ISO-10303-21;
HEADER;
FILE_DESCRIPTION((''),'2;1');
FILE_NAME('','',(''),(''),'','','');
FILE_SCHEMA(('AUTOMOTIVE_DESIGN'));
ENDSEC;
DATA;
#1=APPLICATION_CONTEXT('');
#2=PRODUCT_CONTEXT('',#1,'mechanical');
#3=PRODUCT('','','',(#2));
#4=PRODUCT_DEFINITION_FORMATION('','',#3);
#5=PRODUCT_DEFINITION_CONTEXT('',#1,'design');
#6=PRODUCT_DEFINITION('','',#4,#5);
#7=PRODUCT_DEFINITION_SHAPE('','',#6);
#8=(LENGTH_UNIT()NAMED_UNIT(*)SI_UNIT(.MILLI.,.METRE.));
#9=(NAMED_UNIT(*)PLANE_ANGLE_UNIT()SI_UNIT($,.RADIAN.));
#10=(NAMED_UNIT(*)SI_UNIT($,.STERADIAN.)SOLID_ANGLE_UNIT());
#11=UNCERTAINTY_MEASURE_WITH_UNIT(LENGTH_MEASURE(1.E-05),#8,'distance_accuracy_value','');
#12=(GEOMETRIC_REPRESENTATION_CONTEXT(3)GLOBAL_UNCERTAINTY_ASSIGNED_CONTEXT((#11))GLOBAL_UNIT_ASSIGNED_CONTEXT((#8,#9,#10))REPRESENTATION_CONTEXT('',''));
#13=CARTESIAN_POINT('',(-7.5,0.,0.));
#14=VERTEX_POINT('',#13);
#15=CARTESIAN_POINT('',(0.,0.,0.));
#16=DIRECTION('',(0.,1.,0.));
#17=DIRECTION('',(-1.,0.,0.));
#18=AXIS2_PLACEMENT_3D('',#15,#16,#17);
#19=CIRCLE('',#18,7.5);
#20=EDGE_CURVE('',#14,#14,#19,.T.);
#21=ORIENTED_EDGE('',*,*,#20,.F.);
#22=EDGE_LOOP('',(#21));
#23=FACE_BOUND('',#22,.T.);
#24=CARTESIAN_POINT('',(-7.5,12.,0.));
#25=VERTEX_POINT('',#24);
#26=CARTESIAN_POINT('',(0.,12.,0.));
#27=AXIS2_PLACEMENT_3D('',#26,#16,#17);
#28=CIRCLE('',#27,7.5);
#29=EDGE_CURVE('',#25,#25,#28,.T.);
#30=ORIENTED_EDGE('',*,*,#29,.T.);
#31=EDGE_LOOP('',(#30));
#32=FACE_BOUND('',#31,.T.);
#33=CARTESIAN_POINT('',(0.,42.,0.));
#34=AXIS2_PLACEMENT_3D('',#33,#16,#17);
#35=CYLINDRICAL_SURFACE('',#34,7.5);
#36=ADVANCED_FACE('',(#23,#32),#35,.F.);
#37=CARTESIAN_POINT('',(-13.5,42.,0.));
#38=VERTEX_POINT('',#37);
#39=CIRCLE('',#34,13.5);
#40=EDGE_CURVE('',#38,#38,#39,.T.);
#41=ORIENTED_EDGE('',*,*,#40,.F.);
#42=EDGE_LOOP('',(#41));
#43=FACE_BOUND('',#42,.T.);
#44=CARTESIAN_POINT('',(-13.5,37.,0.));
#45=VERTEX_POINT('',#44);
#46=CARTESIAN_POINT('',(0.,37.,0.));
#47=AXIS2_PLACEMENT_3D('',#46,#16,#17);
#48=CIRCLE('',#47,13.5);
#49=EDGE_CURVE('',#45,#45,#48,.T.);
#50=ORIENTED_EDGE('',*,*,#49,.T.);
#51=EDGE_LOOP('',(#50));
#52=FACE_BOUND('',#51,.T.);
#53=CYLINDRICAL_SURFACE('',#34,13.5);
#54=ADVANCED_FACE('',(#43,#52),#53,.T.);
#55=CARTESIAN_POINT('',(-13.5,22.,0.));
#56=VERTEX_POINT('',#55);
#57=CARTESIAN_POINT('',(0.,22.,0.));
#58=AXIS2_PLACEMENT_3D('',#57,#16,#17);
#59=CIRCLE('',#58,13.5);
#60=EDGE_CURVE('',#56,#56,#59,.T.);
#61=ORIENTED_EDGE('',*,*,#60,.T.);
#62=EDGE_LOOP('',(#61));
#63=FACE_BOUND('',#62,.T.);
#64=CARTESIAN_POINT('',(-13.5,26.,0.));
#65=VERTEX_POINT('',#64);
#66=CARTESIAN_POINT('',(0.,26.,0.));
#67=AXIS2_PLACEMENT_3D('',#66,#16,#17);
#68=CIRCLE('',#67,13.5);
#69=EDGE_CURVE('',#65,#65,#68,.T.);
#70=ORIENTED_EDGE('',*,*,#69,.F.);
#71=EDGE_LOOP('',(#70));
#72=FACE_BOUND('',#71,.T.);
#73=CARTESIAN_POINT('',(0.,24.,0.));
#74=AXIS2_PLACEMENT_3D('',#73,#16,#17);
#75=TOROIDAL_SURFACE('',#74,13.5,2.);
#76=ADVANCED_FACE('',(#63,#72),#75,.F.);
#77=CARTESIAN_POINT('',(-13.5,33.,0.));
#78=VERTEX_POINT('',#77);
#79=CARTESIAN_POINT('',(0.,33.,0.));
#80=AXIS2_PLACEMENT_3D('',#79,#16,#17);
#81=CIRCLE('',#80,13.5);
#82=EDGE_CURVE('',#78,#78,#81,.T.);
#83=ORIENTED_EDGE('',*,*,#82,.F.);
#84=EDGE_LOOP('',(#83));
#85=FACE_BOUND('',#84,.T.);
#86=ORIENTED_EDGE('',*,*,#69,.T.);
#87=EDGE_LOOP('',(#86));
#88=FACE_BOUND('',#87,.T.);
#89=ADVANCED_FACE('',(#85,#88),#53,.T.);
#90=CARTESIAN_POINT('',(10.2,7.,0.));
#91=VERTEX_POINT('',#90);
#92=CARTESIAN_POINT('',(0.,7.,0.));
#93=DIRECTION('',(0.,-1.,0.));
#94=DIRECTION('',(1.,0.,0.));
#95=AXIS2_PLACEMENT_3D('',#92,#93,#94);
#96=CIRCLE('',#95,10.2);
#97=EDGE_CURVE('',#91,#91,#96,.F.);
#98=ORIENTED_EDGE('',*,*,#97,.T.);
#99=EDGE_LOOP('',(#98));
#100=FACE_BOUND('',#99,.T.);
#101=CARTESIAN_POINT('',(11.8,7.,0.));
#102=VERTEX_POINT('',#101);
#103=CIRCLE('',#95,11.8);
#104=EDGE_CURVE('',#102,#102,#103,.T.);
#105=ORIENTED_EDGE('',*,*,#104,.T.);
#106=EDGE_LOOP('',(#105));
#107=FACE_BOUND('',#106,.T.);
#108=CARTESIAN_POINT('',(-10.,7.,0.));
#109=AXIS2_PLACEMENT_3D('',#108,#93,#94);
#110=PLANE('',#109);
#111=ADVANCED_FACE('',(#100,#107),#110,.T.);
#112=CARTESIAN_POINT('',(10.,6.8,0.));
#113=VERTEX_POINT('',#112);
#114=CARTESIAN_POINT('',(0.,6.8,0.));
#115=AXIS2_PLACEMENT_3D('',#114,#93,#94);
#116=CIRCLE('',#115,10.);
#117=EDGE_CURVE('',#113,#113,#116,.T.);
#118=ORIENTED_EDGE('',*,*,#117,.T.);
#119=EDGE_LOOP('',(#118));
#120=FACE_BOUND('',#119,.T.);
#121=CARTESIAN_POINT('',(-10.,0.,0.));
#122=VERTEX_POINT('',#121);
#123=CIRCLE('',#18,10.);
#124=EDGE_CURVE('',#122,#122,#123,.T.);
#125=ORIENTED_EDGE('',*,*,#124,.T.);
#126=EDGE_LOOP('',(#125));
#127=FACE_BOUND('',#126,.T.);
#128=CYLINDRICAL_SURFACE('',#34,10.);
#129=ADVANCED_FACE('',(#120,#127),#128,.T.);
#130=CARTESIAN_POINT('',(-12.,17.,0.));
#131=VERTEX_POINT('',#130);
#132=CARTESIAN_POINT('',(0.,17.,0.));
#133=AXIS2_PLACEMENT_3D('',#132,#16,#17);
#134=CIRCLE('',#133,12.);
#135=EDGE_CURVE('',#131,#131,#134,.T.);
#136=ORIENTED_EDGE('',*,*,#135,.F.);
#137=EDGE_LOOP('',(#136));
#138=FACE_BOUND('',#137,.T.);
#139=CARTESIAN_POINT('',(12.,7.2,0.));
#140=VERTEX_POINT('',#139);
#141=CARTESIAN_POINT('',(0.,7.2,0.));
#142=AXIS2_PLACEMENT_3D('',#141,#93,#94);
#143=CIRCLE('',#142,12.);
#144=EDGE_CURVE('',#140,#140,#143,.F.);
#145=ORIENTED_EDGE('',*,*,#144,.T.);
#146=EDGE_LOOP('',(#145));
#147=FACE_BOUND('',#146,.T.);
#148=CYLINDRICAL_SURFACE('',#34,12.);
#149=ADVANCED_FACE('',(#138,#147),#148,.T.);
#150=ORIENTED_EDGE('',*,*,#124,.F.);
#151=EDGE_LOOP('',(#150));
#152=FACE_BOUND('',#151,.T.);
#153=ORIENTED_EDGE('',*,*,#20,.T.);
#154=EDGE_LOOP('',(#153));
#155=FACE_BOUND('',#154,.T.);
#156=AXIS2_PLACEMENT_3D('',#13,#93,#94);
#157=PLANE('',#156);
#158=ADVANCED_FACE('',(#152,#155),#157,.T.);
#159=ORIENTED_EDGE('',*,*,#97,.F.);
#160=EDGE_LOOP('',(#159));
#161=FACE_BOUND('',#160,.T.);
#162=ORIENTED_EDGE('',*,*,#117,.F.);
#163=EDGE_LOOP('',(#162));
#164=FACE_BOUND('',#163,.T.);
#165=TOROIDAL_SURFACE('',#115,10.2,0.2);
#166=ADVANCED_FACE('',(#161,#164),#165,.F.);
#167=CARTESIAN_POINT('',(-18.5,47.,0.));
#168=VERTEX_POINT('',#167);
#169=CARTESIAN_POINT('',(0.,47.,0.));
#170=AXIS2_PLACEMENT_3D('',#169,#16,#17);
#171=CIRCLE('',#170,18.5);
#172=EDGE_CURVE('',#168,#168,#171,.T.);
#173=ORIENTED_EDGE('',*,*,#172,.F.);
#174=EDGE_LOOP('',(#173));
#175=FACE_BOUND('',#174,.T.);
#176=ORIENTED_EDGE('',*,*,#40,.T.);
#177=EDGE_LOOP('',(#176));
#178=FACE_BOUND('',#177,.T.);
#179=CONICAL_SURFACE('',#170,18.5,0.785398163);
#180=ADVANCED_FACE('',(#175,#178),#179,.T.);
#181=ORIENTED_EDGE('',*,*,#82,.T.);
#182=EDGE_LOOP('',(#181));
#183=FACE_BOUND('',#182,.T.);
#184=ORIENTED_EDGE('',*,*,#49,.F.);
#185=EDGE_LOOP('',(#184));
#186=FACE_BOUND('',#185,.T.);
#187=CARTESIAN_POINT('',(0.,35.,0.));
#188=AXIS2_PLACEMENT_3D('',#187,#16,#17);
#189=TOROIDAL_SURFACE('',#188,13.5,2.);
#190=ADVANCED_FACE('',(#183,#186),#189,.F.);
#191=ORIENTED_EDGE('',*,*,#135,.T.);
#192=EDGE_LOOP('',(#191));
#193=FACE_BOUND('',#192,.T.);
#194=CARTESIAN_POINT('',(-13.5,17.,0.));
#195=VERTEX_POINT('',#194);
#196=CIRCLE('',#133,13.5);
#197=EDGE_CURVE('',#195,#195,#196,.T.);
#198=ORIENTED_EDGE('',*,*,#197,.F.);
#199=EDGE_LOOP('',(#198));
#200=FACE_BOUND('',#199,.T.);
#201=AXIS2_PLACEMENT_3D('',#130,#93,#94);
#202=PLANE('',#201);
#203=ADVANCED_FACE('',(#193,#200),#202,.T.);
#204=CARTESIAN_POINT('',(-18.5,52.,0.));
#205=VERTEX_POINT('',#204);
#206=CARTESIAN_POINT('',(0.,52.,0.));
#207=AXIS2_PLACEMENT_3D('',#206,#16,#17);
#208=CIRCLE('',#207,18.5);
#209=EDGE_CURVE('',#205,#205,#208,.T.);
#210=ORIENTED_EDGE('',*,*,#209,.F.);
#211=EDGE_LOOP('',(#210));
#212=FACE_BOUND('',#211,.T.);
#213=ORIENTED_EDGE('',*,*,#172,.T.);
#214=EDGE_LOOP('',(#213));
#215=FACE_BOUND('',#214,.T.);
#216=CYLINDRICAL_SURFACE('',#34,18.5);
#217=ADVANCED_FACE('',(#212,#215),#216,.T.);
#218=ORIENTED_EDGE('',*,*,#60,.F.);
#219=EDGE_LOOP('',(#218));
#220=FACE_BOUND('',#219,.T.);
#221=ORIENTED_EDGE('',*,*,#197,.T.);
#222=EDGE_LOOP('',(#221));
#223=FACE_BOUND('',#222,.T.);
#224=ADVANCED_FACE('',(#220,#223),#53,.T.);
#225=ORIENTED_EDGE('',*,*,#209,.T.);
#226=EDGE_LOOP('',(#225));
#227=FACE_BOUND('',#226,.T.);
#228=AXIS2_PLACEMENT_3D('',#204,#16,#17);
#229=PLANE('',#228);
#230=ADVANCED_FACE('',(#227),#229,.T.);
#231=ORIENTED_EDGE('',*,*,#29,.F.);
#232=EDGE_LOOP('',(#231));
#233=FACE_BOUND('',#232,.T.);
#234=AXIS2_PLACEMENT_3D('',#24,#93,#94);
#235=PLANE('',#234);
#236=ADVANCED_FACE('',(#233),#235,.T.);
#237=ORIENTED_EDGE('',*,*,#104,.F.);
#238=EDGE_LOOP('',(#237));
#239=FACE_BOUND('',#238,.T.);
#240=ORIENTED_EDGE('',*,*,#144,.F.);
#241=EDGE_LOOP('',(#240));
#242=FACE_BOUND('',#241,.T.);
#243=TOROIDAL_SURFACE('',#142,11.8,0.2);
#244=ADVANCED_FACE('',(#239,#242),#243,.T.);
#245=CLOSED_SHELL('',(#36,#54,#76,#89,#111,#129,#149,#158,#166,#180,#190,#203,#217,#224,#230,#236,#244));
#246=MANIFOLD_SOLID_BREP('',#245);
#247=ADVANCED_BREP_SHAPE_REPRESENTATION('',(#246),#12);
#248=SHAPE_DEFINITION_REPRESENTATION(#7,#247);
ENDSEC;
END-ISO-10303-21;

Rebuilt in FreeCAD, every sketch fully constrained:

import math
import FreeCAD as App
import Part
import Sketcher
from FreeCAD import Vector
Q = App.Units.Quantity


def edges_at(feature, points):
    """Names of the edges that pass closest to the given points."""
    edges = feature.Shape.Edges
    near = lambda p: min(range(len(edges)), key=lambda i: edges[i].distToShape(Part.Vertex(*p))[0])
    return sorted({f"Edge{near(p) + 1}" for p in points})

doc = App.newDocument("Part")
body = doc.addObject("PartDesign::Body", "Body")

# Sketch on XY plane
sketch1 = doc.addObject("Sketcher::SketchObject", "Sketch")
body.addObject(sketch1)
sketch1.AttachmentSupport = (doc.XY_Plane, [""])
sketch1.MapMode = "FlatFace"
sketch1.addGeometry(Part.LineSegment(Vector(-10, 0, 0), Vector(-7.5, 0, 0)), False)
sketch1.addGeometry(Part.LineSegment(Vector(-7.5, 0, 0), Vector(-7.5, 12, 0)), False)
sketch1.addGeometry(Part.LineSegment(Vector(-7.5, 12, 0), Vector(0, 12, 0)), False)
sketch1.addGeometry(Part.LineSegment(Vector(0, 12, 0), Vector(0, 52, 0)), False)
sketch1.addGeometry(Part.LineSegment(Vector(0, 52, 0), Vector(-18.5, 52, 0)), False)
sketch1.addGeometry(Part.LineSegment(Vector(-18.5, 52, 0), Vector(-18.5, 47, 0)), False)
sketch1.addGeometry(Part.LineSegment(Vector(-18.5, 47, 0), Vector(-13.5, 42, 0)), False)
sketch1.addGeometry(Part.LineSegment(Vector(-13.5, 42, 0), Vector(-13.5, 37, 0)), False)
sketch1.addGeometry(Part.ArcOfCircle(Part.Circle(Vector(-13.5, 35, 0), Vector(0, 0, 1), 2), math.radians(-90), math.radians(90)), False)
sketch1.addGeometry(Part.LineSegment(Vector(-13.5, 33, 0), Vector(-13.5, 26, 0)), False)
sketch1.addGeometry(Part.ArcOfCircle(Part.Circle(Vector(-13.5, 24, 0), Vector(0, 0, 1), 2), math.radians(-90), math.radians(90)), False)
sketch1.addGeometry(Part.LineSegment(Vector(-13.5, 22, 0), Vector(-13.5, 17, 0)), False)
sketch1.addGeometry(Part.LineSegment(Vector(-13.5, 17, 0), Vector(-12, 17, 0)), False)
sketch1.addGeometry(Part.LineSegment(Vector(-12, 17, 0), Vector(-12, 7, 0)), False)
sketch1.addGeometry(Part.LineSegment(Vector(-12, 7, 0), Vector(-10, 7, 0)), False)
sketch1.addGeometry(Part.LineSegment(Vector(-10, 7, 0), Vector(-10, 0, 0)), False)
sketch1.addConstraint(Sketcher.Constraint("Coincident", 0, 2, 1, 1))
sketch1.addConstraint(Sketcher.Constraint("Coincident", 1, 2, 2, 1))
sketch1.addConstraint(Sketcher.Constraint("Coincident", 2, 2, 3, 1))
sketch1.addConstraint(Sketcher.Constraint("Coincident", 3, 2, 4, 1))
sketch1.addConstraint(Sketcher.Constraint("Coincident", 4, 2, 5, 1))
sketch1.addConstraint(Sketcher.Constraint("Coincident", 5, 2, 6, 1))
sketch1.addConstraint(Sketcher.Constraint("Coincident", 6, 2, 7, 1))
sketch1.addConstraint(Sketcher.Constraint("Coincident", 7, 2, 8, 2))
sketch1.addConstraint(Sketcher.Constraint("Coincident", 8, 1, 9, 1))
sketch1.addConstraint(Sketcher.Constraint("Coincident", 9, 2, 10, 2))
sketch1.addConstraint(Sketcher.Constraint("Coincident", 10, 1, 11, 1))
sketch1.addConstraint(Sketcher.Constraint("Coincident", 11, 2, 12, 1))
sketch1.addConstraint(Sketcher.Constraint("Coincident", 12, 2, 13, 1))
sketch1.addConstraint(Sketcher.Constraint("Coincident", 13, 2, 14, 1))
sketch1.addConstraint(Sketcher.Constraint("Coincident", 14, 2, 15, 1))
sketch1.addConstraint(Sketcher.Constraint("Coincident", 15, 2, 0, 1))
sketch1.addConstraint(Sketcher.Constraint("Horizontal", 0))
sketch1.addConstraint(Sketcher.Constraint("Vertical", 1))
sketch1.addConstraint(Sketcher.Constraint("Horizontal", 2))
sketch1.addConstraint(Sketcher.Constraint("Vertical", 3))
sketch1.addConstraint(Sketcher.Constraint("Horizontal", 4))
sketch1.addConstraint(Sketcher.Constraint("Vertical", 5))
sketch1.addConstraint(Sketcher.Constraint("Vertical", 7))
sketch1.addConstraint(Sketcher.Constraint("Vertical", 9))
sketch1.addConstraint(Sketcher.Constraint("Vertical", 11))
sketch1.addConstraint(Sketcher.Constraint("Horizontal", 12))
sketch1.addConstraint(Sketcher.Constraint("Vertical", 13))
sketch1.addConstraint(Sketcher.Constraint("Horizontal", 14))
sketch1.addConstraint(Sketcher.Constraint("Vertical", 15))
sketch1.addConstraint(Sketcher.Constraint("Equal", 8, 10))
sketch1.addConstraint(Sketcher.Constraint("PointOnObject", 0, 2, -1))
sketch1.addConstraint(Sketcher.Constraint("PointOnObject", 2, 2, -2))
sketch1.addConstraint(Sketcher.Constraint("Vertical", 8, 3, 10, 3))
sketch1.addConstraint(Sketcher.Constraint("Vertical", 10, 3, 6, 2))
sketch1.addConstraint(Sketcher.Constraint("Vertical", 7, 2, 8, 1))
sketch1.addConstraint(Sketcher.Constraint("Vertical", 9, 2, 10, 1))
sketch1.addConstraint(Sketcher.Constraint("Equal", 5, 7))
sketch1.addConstraint(Sketcher.Constraint("Equal", 7, 11))
sketch1.addConstraint(Sketcher.Constraint("Equal", 9, 15))
sketch1.addConstraint(Sketcher.Constraint("Radius", 8, 2.0))
sketch1.addConstraint(Sketcher.Constraint("DistanceX", 14, 1, 14, 2, 2.0))
sketch1.addConstraint(Sketcher.Constraint("DistanceY", 1, 1, 1, 2, 12.0))
sketch1.addConstraint(Sketcher.Constraint("DistanceY", 3, 1, 3, 2, 40.0))
sketch1.addConstraint(Sketcher.Constraint("DistanceY", 5, 2, 5, 1, 5.0))
sketch1.addConstraint(Sketcher.Constraint("DistanceY", 9, 2, 9, 1, 7.0))
sketch1.addConstraint(Sketcher.Constraint("DistanceY", 13, 2, 13, 1, 10.0))
sketch1.addConstraint(Sketcher.Constraint("Angle", 6, Q("-45 deg")))
sketch1.addConstraint(Sketcher.Constraint("DistanceX", 0, 1, 0, 2, 2.5))
sketch1.addConstraint(Sketcher.Constraint("DistanceX", 2, 1, 2, 2, 7.5))
sketch1.addConstraint(Sketcher.Constraint("DistanceX", 4, 2, 4, 1, 18.5))
revolution = doc.addObject("PartDesign::Revolution", "Revolution")
body.addObject(revolution)
revolution.Profile = sketch1
revolution.ReferenceAxis = (sketch1, ["V_Axis"])
revolution.Angle = 360
doc.recompute()

fillet = doc.addObject("PartDesign::Fillet", "Fillet")
body.addObject(fillet)
fillet.Base = (revolution, edges_at(revolution, [(12, 7, 0), (10, 7, 0)]))
fillet.Radius = 0.2

doc.recompute()
